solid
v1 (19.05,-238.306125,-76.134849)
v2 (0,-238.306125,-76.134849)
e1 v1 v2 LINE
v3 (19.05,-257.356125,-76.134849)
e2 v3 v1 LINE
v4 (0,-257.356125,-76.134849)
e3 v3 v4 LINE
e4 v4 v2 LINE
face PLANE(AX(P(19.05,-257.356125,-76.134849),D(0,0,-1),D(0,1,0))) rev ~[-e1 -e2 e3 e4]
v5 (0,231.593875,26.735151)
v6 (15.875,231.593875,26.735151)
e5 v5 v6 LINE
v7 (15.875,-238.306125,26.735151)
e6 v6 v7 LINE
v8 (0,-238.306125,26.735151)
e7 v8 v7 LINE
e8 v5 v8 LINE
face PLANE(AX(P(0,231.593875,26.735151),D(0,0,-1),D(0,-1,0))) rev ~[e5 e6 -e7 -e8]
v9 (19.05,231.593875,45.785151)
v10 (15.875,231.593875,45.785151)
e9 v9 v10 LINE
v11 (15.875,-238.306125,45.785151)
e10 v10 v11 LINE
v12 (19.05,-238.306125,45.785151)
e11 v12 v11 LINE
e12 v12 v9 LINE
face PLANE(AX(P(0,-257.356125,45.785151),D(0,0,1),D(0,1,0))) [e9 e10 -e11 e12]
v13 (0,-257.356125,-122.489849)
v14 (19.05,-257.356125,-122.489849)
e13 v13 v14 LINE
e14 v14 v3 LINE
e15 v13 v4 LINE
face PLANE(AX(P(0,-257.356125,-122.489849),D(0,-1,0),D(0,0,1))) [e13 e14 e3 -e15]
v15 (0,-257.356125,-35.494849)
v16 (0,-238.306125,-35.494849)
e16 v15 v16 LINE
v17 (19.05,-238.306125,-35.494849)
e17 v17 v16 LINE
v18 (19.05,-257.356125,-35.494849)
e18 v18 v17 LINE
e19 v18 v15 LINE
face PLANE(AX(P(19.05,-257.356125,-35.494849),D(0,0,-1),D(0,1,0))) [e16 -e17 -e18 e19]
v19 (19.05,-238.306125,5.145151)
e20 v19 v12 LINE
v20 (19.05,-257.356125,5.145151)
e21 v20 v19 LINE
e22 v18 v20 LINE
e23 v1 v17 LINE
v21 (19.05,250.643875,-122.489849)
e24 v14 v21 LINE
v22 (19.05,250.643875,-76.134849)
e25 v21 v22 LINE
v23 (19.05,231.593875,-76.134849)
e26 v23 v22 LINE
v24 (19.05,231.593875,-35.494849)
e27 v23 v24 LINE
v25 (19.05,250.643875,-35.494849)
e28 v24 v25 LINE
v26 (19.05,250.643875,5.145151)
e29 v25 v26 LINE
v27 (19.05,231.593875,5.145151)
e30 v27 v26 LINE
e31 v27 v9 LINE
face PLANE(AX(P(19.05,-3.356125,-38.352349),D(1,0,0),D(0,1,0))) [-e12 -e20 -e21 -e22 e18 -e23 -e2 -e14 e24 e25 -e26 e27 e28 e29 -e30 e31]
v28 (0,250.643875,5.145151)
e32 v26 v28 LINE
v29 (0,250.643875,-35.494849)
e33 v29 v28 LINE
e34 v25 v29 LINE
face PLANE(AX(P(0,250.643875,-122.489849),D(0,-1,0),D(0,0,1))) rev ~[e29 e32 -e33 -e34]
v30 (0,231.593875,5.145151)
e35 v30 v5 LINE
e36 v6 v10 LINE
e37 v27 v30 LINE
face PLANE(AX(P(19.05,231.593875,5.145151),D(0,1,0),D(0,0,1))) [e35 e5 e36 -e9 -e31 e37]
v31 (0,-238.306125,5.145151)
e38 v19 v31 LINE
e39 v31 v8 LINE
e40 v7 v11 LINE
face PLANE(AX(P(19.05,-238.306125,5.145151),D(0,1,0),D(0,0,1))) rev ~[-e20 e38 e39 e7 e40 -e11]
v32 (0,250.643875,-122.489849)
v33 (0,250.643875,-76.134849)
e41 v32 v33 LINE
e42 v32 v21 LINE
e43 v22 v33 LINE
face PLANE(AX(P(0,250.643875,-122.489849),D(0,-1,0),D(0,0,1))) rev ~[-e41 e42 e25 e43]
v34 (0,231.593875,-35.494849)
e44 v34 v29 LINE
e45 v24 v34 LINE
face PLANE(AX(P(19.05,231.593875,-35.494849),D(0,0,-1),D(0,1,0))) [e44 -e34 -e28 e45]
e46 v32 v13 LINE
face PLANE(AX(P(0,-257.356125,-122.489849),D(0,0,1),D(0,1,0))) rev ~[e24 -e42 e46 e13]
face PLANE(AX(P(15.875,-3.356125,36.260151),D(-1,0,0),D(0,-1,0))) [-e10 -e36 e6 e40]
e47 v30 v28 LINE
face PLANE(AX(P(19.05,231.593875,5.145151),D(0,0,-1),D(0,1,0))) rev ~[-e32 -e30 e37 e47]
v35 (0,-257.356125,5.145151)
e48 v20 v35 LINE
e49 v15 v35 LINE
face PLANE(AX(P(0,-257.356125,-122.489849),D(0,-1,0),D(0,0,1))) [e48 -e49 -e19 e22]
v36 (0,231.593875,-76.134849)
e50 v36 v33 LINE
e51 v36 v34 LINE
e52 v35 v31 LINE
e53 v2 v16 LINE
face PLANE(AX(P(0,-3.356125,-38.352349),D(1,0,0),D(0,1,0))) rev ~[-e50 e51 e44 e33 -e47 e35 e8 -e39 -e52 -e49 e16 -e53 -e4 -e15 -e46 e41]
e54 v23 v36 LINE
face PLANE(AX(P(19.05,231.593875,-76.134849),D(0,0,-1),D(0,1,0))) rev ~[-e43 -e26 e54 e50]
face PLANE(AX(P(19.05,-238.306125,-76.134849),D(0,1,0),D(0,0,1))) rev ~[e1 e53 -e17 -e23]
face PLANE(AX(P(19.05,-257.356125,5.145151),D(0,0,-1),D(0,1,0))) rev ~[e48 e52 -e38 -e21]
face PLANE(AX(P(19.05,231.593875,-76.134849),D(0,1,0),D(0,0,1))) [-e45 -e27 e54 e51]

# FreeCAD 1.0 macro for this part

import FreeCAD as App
import Part
import Sketcher
from FreeCAD import Vector
Q = App.Units.Quantity

doc = App.newDocument("Part")
params = doc.addObject("Spreadsheet::Sheet", "Params")
for row, (alias, value) in enumerate([
    ("sketch1_width", "20 in"),
    ("sketch1_height", "6.625 in"),
    ("pad1_length", "0.75 in"),
    ("sketch2_height", "1.6 in"),
    ("sketch2_width", "0.75 in"),
    ("sketch2_height2", "1.375 in"),
    ("pocket1_length", "1 in"),
    ("sketch3_width", "18.5 in"),
    ("sketch3_height", "0.75 in"),
    ("pocket2_length", "0.625 in"),
], start=1):
    params.set(f"A{row}", alias)
    params.set(f"B{row}", "=" + value)
    params.setAlias(f"B{row}", alias)

body = doc.addObject("PartDesign::Body", "Body")

# Sketch on YZ plane
sketch1 = body.newObject("Sketcher::SketchObject", "Sketch")
sketch1.AttachmentSupport = (doc.getObject("YZ_Plane"), [""])
sketch1.MapMode = "FlatFace"
sketch1.addGeometry([
    Part.LineSegment(Vector(-257, 46, 0), Vector(-257, -122, 0)),
    Part.LineSegment(Vector(-257, -122, 0), Vector(251, -122, 0)),
    Part.LineSegment(Vector(251, -122, 0), Vector(251, 46, 0)),
    Part.LineSegment(Vector(251, 46, 0), Vector(-257, 46, 0)),
], False)
sketch1.addConstraint([
    Sketcher.Constraint("Coincident", 0, 2, 1, 1),
    Sketcher.Constraint("Coincident", 1, 2, 2, 1),
    Sketcher.Constraint("Coincident", 2, 2, 3, 1),
    Sketcher.Constraint("Coincident", 3, 2, 0, 1),
    Sketcher.Constraint("Vertical", 0),
    Sketcher.Constraint("Horizontal", 1),
    Sketcher.Constraint("Vertical", 2),
    Sketcher.Constraint("Horizontal", 3),
    Sketcher.Constraint("DistanceX", 1, 1, 1, 2, Q("20 in")),
    Sketcher.Constraint("DistanceY", 0, 2, 0, 1, Q("6.625 in")),
    Sketcher.Constraint("DistanceY", 0, 2, -1, 1, 122.489849),
    Sketcher.Constraint("DistanceX", 0, 2, -1, 1, 257.356125),
])
sketch1.setExpression("Constraints[8]", "Params.sketch1_width")
sketch1.setExpression("Constraints[9]", "Params.sketch1_height")
pad1 = body.newObject("PartDesign::Pad", "Pad")
pad1.Profile = sketch1
pad1.setExpression("Length", "Params.pad1_length")

# Sketch on YZ plane
sketch2 = body.newObject("Sketcher::SketchObject", "Sketch001")
sketch2.AttachmentSupport = (doc.getObject("YZ_Plane"), [""])
sketch2.MapMode = "FlatFace"
sketch2.AttachmentOffset = App.Placement(Vector(0, 0, 0.75 * 25.4), App.Rotation())
sketch2.addGeometry([
    Part.LineSegment(Vector(232, 46, 0), Vector(232, 5, 0)),  # 0
    Part.LineSegment(Vector(232, 5, 0), Vector(251, 5, 0)),  # 1
    Part.LineSegment(Vector(251, 5, 0), Vector(251, 46, 0)),  # 2
    Part.LineSegment(Vector(251, 46, 0), Vector(232, 46, 0)),  # 3
    Part.LineSegment(Vector(232, -35, 0), Vector(232, -76, 0)),  # 4
    Part.LineSegment(Vector(232, -76, 0), Vector(251, -76, 0)),  # 5
    Part.LineSegment(Vector(251, -76, 0), Vector(251, -35, 0)),  # 6
    Part.LineSegment(Vector(251, -35, 0), Vector(232, -35, 0)),  # 7
    Part.LineSegment(Vector(232, -122, 0), Vector(232, -157, 0)),  # 8
    Part.LineSegment(Vector(232, -157, 0), Vector(251, -157, 0)),  # 9
    Part.LineSegment(Vector(251, -157, 0), Vector(251, -122, 0)),  # 10
    Part.LineSegment(Vector(251, -122, 0), Vector(232, -122, 0)),  # 11
    Part.LineSegment(Vector(-257, -35, 0), Vector(-257, -76, 0)),  # 12
    Part.LineSegment(Vector(-257, -76, 0), Vector(-238, -76, 0)),  # 13
    Part.LineSegment(Vector(-238, -76, 0), Vector(-238, -35, 0)),  # 14
    Part.LineSegment(Vector(-238, -35, 0), Vector(-257, -35, 0)),  # 15
    Part.LineSegment(Vector(-257, 46, 0), Vector(-257, 5, 0)),  # 16
    Part.LineSegment(Vector(-257, 5, 0), Vector(-238, 5, 0)),  # 17
    Part.LineSegment(Vector(-238, 5, 0), Vector(-238, 46, 0)),  # 18
    Part.LineSegment(Vector(-238, 46, 0), Vector(-257, 46, 0)),  # 19
], False)
sketch2.addConstraint([
    Sketcher.Constraint("Coincident", 0, 2, 1, 1),
    Sketcher.Constraint("Coincident", 1, 2, 2, 1),
    Sketcher.Constraint("Coincident", 2, 2, 3, 1),
    Sketcher.Constraint("Coincident", 3, 2, 0, 1),
    Sketcher.Constraint("Coincident", 4, 2, 5, 1),
    Sketcher.Constraint("Coincident", 5, 2, 6, 1),
    Sketcher.Constraint("Coincident", 6, 2, 7, 1),
    Sketcher.Constraint("Coincident", 7, 2, 4, 1),
    Sketcher.Constraint("Coincident", 8, 2, 9, 1),
    Sketcher.Constraint("Coincident", 9, 2, 10, 1),
    Sketcher.Constraint("Coincident", 10, 2, 11, 1),
    Sketcher.Constraint("Coincident", 11, 2, 8, 1),
    Sketcher.Constraint("Coincident", 12, 2, 13, 1),
    Sketcher.Constraint("Coincident", 13, 2, 14, 1),
    Sketcher.Constraint("Coincident", 14, 2, 15, 1),
    Sketcher.Constraint("Coincident", 15, 2, 12, 1),
    Sketcher.Constraint("Coincident", 16, 2, 17, 1),
    Sketcher.Constraint("Coincident", 17, 2, 18, 1),
    Sketcher.Constraint("Coincident", 18, 2, 19, 1),
    Sketcher.Constraint("Coincident", 19, 2, 16, 1),
    Sketcher.Constraint("Vertical", 0),
    Sketcher.Constraint("Horizontal", 1),
    Sketcher.Constraint("Vertical", 2),
    Sketcher.Constraint("Horizontal", 3),
    Sketcher.Constraint("Vertical", 4),
    Sketcher.Constraint("Horizontal", 5),
    Sketcher.Constraint("Vertical", 6),
    Sketcher.Constraint("Horizontal", 7),
    Sketcher.Constraint("Vertical", 8),
    Sketcher.Constraint("Horizontal", 9),
    Sketcher.Constraint("Vertical", 10),
    Sketcher.Constraint("Horizontal", 11),
    Sketcher.Constraint("Vertical", 12),
    Sketcher.Constraint("Horizontal", 13),
    Sketcher.Constraint("Vertical", 14),
    Sketcher.Constraint("Horizontal", 15),
    Sketcher.Constraint("Vertical", 16),
    Sketcher.Constraint("Horizontal", 17),
    Sketcher.Constraint("Vertical", 18),
    Sketcher.Constraint("Horizontal", 19),
    Sketcher.Constraint("Horizontal", 5, 2, 12, 2),
    Sketcher.Constraint("Horizontal", 7, 2, 14, 2),
    Sketcher.Constraint("Horizontal", 1, 2, 16, 2),
    Sketcher.Constraint("Horizontal", 3, 2, 18, 2),
    Sketcher.Constraint("Vertical", 3, 2, 4, 2),
    Sketcher.Constraint("Vertical", 2, 2, 5, 2),
    Sketcher.Constraint("Vertical", 7, 2, 8, 2),
    Sketcher.Constraint("Vertical", 6, 2, 9, 2),
    Sketcher.Constraint("Vertical", 15, 2, 16, 2),
    Sketcher.Constraint("Vertical", 14, 2, 17, 2),
    Sketcher.Constraint("Equal", 11, 13),
    Sketcher.Constraint("Equal", 2, 4),
    Sketcher.Constraint("DistanceY", 0, 2, 0, 1, Q("1.6 in")),
    Sketcher.Constraint("DistanceX", 1, 1, 1, 2, Q("0.75 in")),
    Sketcher.Constraint("DistanceY", 4, 2, 0, 2, Q("3.2 in")),
    Sketcher.Constraint("DistanceY", 8, 2, 4, 2, Q("3.2 in")),
    Sketcher.Constraint("DistanceX", 13, 2, 4, 2, Q("18.5 in")),
    Sketcher.Constraint("DistanceY", 8, 2, 8, 1, Q("1.375 in")),
    Sketcher.Constraint("DistanceY", -1, 1, 0, 2, 5.145151),
    Sketcher.Constraint("DistanceX", -1, 1, 0, 2, 231.593875),
])
sketch2.setExpression("Constraints[52]", "Params.sketch2_height")
sketch2.setExpression("Constraints[53]", "Params.sketch2_width")
sketch2.setExpression("Constraints[57]", "Params.sketch2_height2")
pocket1 = body.newObject("PartDesign::Pocket", "Pocket")
pocket1.Profile = sketch2
pocket1.setExpression("Length", "Params.pocket1_length")

# Sketch on YZ plane
sketch3 = body.newObject("Sketcher::SketchObject", "Sketch002")
sketch3.AttachmentSupport = (doc.getObject("YZ_Plane"), [""])
sketch3.MapMode = "FlatFace"
sketch3.addGeometry([
    Part.LineSegment(Vector(232, 46, 0), Vector(232, 27, 0)),
    Part.LineSegment(Vector(232, 27, 0), Vector(-238, 27, 0)),
    Part.LineSegment(Vector(-238, 27, 0), Vector(-238, 46, 0)),
    Part.LineSegment(Vector(-238, 46, 0), Vector(232, 46, 0)),
], False)
sketch3.addConstraint([
    Sketcher.Constraint("Coincident", 0, 2, 1, 1),
    Sketcher.Constraint("Coincident", 1, 2, 2, 1),
    Sketcher.Constraint("Coincident", 2, 2, 3, 1),
    Sketcher.Constraint("Coincident", 3, 2, 0, 1),
    Sketcher.Constraint("Vertical", 0),
    Sketcher.Constraint("Horizontal", 1),
    Sketcher.Constraint("Vertical", 2),
    Sketcher.Constraint("Horizontal", 3),
    Sketcher.Constraint("DistanceX", 1, 2, 1, 1, Q("18.5 in")),
    Sketcher.Constraint("DistanceY", 0, 2, 0, 1, Q("0.75 in")),
    Sketcher.Constraint("DistanceY", -1, 1, 0, 2, 26.735151),
    Sketcher.Constraint("DistanceX", -1, 1, 0, 2, 231.593875),
])
sketch3.setExpression("Constraints[8]", "Params.sketch3_width")
sketch3.setExpression("Constraints[9]", "Params.sketch3_height")
pocket2 = body.newObject("PartDesign::Pocket", "Pocket001")
pocket2.Profile = sketch3
pocket2.setExpression("Length", "Params.pocket2_length")
pocket2.Reversed = True

doc.recompute()
